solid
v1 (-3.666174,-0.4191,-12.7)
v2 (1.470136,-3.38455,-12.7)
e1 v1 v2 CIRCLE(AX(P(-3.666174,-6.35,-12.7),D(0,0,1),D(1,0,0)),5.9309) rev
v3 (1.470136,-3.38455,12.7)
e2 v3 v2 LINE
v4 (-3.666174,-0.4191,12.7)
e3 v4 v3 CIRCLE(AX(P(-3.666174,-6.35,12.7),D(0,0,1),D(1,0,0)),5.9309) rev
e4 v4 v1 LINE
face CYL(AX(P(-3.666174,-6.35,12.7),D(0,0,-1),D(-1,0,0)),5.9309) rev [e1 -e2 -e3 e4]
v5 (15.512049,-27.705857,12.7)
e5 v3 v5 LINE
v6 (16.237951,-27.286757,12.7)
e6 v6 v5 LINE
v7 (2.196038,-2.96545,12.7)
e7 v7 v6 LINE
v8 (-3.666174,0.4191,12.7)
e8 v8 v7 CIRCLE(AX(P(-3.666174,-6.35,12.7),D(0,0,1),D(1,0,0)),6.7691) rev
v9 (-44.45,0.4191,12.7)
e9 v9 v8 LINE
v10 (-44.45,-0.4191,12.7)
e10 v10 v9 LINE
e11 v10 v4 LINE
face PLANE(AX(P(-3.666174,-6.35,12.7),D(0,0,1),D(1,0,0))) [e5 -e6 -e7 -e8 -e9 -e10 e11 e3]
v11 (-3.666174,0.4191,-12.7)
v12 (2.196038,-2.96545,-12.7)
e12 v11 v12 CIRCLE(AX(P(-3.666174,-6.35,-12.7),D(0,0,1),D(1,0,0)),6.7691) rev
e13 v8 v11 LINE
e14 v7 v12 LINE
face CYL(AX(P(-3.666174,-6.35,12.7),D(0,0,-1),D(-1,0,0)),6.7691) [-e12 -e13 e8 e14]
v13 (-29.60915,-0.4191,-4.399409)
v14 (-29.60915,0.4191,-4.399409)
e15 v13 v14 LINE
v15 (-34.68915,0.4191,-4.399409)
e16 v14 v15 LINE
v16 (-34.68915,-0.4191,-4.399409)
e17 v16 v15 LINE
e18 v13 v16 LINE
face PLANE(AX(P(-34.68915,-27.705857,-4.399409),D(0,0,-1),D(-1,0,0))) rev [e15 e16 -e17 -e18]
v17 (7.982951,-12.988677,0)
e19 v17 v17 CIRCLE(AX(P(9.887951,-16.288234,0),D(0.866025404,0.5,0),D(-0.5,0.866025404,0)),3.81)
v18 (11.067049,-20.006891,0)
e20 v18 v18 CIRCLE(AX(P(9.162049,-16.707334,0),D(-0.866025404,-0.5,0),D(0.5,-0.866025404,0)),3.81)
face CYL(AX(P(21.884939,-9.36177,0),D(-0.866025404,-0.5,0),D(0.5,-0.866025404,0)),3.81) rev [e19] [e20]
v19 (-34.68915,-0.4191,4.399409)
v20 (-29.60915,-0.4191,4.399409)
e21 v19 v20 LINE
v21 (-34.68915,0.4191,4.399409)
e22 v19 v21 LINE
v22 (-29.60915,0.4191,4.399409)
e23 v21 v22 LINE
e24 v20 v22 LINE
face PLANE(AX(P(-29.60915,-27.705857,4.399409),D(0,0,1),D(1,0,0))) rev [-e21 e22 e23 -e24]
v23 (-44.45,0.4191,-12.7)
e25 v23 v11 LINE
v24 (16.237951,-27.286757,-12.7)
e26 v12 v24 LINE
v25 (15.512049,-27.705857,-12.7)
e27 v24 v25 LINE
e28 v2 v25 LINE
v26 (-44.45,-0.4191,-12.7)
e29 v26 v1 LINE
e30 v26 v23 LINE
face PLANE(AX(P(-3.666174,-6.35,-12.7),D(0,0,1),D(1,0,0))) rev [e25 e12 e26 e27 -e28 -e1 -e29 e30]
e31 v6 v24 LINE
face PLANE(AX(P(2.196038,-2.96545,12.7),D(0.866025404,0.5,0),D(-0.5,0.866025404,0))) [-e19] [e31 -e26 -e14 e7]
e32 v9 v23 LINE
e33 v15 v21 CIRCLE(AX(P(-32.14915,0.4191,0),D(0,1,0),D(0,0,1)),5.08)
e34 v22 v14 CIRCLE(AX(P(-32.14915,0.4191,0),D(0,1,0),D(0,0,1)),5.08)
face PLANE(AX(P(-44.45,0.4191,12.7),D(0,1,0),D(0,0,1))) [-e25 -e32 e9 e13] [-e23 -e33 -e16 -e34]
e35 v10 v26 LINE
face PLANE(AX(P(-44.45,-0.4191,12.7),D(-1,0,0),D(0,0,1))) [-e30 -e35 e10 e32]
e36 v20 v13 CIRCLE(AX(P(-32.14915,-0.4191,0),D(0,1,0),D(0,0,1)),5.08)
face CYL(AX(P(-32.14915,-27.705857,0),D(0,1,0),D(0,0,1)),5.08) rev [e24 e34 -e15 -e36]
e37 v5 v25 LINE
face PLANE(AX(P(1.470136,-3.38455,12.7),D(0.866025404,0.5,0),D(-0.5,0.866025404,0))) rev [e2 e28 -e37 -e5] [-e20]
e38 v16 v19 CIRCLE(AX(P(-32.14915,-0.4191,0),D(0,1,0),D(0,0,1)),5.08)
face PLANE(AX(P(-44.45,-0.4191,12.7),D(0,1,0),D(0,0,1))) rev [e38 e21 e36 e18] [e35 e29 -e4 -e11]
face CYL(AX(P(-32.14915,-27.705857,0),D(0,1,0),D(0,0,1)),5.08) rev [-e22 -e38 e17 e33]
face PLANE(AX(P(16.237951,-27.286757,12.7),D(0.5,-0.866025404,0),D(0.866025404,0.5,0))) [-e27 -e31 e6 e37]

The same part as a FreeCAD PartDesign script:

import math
import FreeCAD as App
import Part
import Sketcher
Q = App.Units.Quantity

doc = App.newDocument("Part")
body = doc.addObject("PartDesign::Body", "Body")

# Sketch on XY plane
sketch1 = body.newObject("Sketcher::SketchObject", "Sketch")
sketch1.AttachmentSupport = (doc.getObject("XY_Plane"), [""])
sketch1.MapMode = "FlatFace"
sketch1.addGeometry([
    Part.LineSegment(App.Vector(-44.45, -0.4191, 0), App.Vector(-3.666174, -0.4191, 0)),  # 0
    Part.ArcOfCircle(Part.Circle(App.Vector(-3.666174, -6.35, 0), App.Vector(0, 0, 1), 5.9309), math.radians(30), math.radians(90)),  # 1
    Part.LineSegment(App.Vector(1.470136, -3.38455, 0), App.Vector(15.512049, -27.705857, 0)),  # 2
    Part.LineSegment(App.Vector(15.512049, -27.705857, 0), App.Vector(16.237951, -27.286757, 0)),  # 3
    Part.LineSegment(App.Vector(16.237951, -27.286757, 0), App.Vector(2.196038, -2.96545, 0)),  # 4
    Part.ArcOfCircle(Part.Circle(App.Vector(-3.666174, -6.35, 0), App.Vector(0, 0, 1), 6.7691), math.radians(30), math.radians(90)),  # 5
    Part.LineSegment(App.Vector(-3.666174, 0.4191, 0), App.Vector(-44.45, 0.4191, 0)),  # 6
    Part.LineSegment(App.Vector(-44.45, 0.4191, 0), App.Vector(-44.45, -0.4191, 0)),  # 7
], False)
sketch1.addConstraint([
    Sketcher.Constraint("Tangent", 0, 2, 1, 2),
    Sketcher.Constraint("Tangent", 1, 1, 2, 1),
    Sketcher.Constraint("Coincident", 2, 2, 3, 1),
    Sketcher.Constraint("Coincident", 3, 2, 4, 1),
    Sketcher.Constraint("Tangent", 4, 2, 5, 1),
    Sketcher.Constraint("Tangent", 5, 2, 6, 1),
    Sketcher.Constraint("Coincident", 6, 2, 7, 1),
    Sketcher.Constraint("Coincident", 7, 2, 0, 1),
    Sketcher.Constraint("Horizontal", 0),
    Sketcher.Constraint("Horizontal", 6),
    Sketcher.Constraint("Vertical", 7),
    Sketcher.Constraint("Coincident", 5, 3, 1, 3),
    Sketcher.Constraint("Perpendicular", 2, 3),
    Sketcher.Constraint("Perpendicular", 3, 4),
    Sketcher.Constraint("Angle", 2, Q("-60 deg")),
    Sketcher.Constraint("Radius", 1, Q("0.2335 in")),
    Sketcher.Constraint("Radius", 5, Q("0.2665 in")),
    Sketcher.Constraint("DistanceY", 1, 3, -1, 1, Q("0.25 in")),
    Sketcher.Constraint("DistanceX", 6, 2, -1, 1, Q("1.75 in")),
    Sketcher.Constraint("DistanceX", 0, 1, 0, 2, 40.783826),
    Sketcher.Constraint("DistanceX", -1, 1, 2, 2, 15.512049),
])
pad1 = body.newObject("PartDesign::Pad", "Pad")
pad1.Profile = sketch1
pad1.Length = Q("1 in")
pad1.Midplane = True

# Sketch on XZ plane
sketch2 = body.newObject("Sketcher::SketchObject", "Sketch001")
sketch2.AttachmentSupport = (doc.getObject("XZ_Plane"), [""])
sketch2.MapMode = "FlatFace"
sketch2.AttachmentOffset = App.Placement(App.Vector(0, 0, -0.0165 * 25.4), App.Rotation())
sketch2.addGeometry([
    Part.LineSegment(App.Vector(-29.60915, -4.399409, 0), App.Vector(-34.68915, -4.399409, 0)),
    Part.ArcOfCircle(Part.Circle(App.Vector(-32.14915, 0, 0), App.Vector(0, 0, 1), 5.08), math.radians(120), math.radians(240)),
    Part.LineSegment(App.Vector(-34.68915, 4.399409, 0), App.Vector(-29.60915, 4.399409, 0)),
    Part.ArcOfCircle(Part.Circle(App.Vector(-32.14915, 0, 0), App.Vector(0, 0, 1), 5.08), math.radians(-60), math.radians(60)),
], False)
sketch2.addConstraint([
    Sketcher.Constraint("Coincident", 0, 2, 1, 2),
    Sketcher.Constraint("Coincident", 1, 1, 2, 1),
    Sketcher.Constraint("Coincident", 2, 2, 3, 2),
    Sketcher.Constraint("Coincident", 3, 1, 0, 1),
    Sketcher.Constraint("Horizontal", 0),
    Sketcher.Constraint("Horizontal", 2),
    Sketcher.Constraint("Coincident", 3, 3, 1, 3),
    Sketcher.Constraint("Equal", 1, 3),
    Sketcher.Constraint("Symmetric", 0, 2, 1, 1, -1),
    Sketcher.Constraint("Radius", 1, Q("0.2 in")),
    Sketcher.Constraint("DistanceX", 0, 2, 0, 1, Q("0.2 in")),
    Sketcher.Constraint("DistanceX", 1, 3, -1, 1, 32.14915),
])
pocket1 = body.newObject("PartDesign::Pocket", "Pocket")
pocket1.Profile = sketch2
pocket1.Type = "ThroughAll"
pocket1.Reversed = True

# Sketch on an angled plane
sketch3 = body.newObject("Sketcher::SketchObject", "Sketch002")
sketch3.Placement = App.Placement(App.Vector(-0.362951, -0.20955, 0), App.Rotation(App.Vector(0, 0, 1), App.Vector(-0.5, 0.866025404, 0), App.Vector(-0.866025404, -0.5, 0), "ZXY"))
sketch3.addGeometry(Part.Circle(App.Vector(0, -19.05, 0), App.Vector(0, 0, 1), 3.81), False)
sketch3.addConstraint([
    Sketcher.Constraint("PointOnObject", 0, 3, -2),
    Sketcher.Constraint("Diameter", 0, Q("0.3 in")),
    Sketcher.Constraint("DistanceY", 0, 3, -1, 1, Q("0.75 in")),
])
pocket2 = body.newObject("PartDesign::Pocket", "Pocket001")
pocket2.Profile = sketch3
pocket2.Type = "ThroughAll"

doc.recompute()
